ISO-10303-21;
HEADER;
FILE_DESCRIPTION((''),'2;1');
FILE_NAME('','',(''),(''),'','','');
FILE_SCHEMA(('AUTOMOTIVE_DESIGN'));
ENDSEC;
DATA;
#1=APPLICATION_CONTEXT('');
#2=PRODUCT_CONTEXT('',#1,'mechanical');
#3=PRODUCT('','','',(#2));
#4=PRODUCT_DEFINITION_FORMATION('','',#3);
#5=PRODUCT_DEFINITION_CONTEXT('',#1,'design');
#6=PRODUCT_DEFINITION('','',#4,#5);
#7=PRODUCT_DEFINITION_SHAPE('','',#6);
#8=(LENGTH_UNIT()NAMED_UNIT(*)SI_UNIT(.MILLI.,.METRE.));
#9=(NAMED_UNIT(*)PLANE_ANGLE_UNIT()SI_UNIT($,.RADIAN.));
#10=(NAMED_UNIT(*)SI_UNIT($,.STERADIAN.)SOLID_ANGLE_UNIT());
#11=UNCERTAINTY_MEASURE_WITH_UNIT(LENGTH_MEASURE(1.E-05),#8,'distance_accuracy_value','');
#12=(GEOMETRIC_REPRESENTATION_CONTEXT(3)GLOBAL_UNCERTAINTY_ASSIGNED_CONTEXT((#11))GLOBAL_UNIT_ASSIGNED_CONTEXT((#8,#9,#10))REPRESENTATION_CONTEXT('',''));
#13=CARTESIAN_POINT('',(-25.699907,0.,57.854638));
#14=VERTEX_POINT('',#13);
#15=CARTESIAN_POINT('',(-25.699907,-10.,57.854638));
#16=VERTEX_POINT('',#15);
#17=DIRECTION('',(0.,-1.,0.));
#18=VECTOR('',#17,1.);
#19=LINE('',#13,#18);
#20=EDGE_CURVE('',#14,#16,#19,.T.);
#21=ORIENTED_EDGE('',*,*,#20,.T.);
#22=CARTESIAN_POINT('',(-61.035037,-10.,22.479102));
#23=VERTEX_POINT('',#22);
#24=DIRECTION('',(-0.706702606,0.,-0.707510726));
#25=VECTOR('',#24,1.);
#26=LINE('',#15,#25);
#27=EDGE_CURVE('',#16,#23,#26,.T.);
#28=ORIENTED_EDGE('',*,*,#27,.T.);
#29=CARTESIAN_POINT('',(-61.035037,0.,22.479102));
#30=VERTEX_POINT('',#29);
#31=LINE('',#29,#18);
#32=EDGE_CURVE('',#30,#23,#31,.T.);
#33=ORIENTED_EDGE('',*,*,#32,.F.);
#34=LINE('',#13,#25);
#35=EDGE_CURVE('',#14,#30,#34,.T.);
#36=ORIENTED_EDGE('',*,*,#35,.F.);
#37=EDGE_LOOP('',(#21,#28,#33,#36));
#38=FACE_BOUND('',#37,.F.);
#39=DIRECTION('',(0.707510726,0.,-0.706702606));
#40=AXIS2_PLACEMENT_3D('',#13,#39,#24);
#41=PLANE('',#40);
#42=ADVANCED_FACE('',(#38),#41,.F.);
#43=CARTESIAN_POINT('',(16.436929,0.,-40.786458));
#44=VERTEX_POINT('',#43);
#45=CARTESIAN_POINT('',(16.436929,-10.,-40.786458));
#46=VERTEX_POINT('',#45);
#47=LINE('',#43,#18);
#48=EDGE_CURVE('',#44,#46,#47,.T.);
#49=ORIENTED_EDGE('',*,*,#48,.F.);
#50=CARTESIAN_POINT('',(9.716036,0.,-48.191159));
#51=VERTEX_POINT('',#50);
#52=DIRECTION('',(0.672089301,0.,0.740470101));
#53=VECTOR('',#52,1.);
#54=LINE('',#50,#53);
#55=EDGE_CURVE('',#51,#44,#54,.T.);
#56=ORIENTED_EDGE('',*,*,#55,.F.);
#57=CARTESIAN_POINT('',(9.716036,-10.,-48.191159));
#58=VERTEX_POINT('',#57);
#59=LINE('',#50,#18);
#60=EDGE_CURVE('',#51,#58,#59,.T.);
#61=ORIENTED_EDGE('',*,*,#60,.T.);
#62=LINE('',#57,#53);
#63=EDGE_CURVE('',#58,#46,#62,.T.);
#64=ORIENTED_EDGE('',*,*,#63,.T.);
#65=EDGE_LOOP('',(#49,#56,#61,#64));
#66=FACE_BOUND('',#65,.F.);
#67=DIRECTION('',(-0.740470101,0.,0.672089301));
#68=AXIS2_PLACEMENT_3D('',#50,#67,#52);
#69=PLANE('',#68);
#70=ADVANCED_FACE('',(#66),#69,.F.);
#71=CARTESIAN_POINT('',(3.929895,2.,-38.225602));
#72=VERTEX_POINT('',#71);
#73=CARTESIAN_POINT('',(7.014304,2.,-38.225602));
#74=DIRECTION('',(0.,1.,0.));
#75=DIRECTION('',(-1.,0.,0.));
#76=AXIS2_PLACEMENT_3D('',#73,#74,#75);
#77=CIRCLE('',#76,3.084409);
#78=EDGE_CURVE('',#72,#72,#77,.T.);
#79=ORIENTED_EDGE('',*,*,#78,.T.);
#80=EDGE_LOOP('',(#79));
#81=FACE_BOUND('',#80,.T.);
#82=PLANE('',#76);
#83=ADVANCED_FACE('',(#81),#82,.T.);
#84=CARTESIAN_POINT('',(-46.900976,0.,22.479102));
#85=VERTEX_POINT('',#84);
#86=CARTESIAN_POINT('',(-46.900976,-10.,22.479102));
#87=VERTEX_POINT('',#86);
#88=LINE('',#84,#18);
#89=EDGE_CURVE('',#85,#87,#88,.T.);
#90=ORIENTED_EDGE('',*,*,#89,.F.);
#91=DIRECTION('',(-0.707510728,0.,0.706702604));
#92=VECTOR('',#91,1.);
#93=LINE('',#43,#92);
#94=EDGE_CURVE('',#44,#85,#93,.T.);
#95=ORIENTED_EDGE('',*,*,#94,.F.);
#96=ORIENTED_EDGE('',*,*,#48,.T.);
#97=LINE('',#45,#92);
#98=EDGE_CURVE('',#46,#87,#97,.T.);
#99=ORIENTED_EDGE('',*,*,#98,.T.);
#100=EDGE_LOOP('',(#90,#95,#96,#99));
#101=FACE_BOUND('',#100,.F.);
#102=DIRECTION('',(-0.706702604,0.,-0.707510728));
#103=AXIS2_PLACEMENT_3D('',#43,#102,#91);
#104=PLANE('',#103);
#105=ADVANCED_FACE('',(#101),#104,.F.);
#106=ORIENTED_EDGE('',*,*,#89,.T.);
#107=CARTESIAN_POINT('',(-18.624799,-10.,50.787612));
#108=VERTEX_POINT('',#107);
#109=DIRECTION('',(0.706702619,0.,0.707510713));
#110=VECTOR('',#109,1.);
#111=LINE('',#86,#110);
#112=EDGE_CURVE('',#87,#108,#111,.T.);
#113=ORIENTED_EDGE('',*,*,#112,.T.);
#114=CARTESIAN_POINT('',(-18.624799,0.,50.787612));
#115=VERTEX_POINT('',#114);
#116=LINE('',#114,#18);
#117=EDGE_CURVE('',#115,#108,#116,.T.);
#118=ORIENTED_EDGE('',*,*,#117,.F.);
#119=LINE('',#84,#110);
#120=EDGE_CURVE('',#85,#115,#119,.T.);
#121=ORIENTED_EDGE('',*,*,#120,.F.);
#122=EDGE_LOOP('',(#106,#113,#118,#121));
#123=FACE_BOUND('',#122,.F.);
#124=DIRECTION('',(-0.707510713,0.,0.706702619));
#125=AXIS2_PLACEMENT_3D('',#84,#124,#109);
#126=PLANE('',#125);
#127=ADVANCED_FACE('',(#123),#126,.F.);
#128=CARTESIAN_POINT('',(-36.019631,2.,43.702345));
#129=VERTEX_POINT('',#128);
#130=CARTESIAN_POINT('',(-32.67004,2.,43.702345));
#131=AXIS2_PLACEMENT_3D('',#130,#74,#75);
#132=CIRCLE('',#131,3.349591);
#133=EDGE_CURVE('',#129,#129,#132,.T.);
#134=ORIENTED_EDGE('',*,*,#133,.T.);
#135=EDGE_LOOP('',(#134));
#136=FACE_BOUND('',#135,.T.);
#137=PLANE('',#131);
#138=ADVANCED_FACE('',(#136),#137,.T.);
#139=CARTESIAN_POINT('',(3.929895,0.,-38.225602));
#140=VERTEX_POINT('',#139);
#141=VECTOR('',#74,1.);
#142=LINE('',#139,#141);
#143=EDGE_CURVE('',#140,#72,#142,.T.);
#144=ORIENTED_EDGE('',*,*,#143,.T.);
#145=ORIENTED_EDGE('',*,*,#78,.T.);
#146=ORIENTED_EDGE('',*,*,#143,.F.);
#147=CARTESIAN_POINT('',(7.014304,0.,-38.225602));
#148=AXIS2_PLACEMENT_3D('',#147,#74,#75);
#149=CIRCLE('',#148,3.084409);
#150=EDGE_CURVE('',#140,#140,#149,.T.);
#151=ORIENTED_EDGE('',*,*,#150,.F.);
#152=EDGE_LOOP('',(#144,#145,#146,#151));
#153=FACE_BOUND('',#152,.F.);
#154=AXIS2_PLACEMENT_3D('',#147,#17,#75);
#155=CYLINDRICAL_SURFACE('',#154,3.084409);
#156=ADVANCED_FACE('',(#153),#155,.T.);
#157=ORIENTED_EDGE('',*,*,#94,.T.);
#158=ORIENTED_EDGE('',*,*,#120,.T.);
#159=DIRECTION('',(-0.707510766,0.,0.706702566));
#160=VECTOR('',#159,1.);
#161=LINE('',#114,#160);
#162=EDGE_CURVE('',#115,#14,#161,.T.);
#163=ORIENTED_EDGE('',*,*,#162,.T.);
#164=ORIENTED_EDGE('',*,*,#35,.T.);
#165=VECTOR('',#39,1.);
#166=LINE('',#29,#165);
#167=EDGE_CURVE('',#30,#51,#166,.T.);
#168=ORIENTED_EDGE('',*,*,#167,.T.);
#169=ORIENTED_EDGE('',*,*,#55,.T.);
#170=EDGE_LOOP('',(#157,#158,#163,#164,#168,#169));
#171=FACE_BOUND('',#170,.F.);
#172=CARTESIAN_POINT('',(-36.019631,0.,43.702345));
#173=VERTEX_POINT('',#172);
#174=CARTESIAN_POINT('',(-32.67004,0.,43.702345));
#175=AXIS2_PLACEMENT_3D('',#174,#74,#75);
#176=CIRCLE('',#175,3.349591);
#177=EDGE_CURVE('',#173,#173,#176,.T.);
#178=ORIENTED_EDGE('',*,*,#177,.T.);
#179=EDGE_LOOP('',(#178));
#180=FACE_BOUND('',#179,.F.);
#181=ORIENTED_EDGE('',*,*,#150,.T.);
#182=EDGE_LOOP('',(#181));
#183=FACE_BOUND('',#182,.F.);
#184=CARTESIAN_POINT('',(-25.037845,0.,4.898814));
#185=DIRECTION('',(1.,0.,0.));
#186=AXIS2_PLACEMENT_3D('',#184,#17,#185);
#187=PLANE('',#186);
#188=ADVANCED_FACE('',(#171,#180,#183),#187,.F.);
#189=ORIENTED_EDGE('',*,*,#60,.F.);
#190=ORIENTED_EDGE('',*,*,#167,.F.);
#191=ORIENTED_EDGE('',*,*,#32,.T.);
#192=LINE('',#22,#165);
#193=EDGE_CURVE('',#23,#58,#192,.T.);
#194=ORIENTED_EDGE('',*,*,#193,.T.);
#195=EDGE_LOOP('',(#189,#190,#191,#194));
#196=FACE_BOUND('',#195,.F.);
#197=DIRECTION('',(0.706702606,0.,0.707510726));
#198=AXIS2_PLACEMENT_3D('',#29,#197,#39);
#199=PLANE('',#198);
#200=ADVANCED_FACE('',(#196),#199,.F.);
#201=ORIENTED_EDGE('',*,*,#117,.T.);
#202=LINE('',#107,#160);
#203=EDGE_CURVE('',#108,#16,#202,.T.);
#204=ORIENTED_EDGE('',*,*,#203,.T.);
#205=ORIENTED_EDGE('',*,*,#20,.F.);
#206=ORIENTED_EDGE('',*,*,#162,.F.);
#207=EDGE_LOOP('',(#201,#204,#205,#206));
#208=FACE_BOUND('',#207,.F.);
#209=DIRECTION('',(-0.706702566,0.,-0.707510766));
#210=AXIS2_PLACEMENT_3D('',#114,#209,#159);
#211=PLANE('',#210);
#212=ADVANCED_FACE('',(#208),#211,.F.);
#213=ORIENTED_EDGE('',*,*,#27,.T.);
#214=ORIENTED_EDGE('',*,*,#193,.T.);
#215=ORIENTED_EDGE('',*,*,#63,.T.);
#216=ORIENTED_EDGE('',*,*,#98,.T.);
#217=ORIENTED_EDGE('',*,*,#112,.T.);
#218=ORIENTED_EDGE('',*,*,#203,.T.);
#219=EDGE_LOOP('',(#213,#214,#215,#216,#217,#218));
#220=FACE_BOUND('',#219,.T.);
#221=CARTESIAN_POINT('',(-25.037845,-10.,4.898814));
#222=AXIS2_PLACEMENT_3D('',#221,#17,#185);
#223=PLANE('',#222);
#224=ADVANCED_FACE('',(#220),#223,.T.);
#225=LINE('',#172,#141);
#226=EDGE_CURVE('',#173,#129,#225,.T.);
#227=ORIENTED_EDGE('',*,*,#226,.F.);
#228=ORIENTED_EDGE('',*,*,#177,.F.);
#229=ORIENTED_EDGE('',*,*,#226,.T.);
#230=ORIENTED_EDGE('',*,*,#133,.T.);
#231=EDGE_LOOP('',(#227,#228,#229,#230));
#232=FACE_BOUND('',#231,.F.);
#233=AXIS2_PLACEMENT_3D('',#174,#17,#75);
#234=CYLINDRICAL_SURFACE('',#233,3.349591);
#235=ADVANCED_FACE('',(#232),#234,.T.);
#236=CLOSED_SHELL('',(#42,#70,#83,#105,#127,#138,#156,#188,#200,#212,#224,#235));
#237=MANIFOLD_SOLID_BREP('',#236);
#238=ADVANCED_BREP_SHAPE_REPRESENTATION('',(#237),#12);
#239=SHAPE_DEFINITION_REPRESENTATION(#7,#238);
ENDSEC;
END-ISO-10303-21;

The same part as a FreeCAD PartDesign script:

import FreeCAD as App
import Part
import Sketcher
from FreeCAD import Vector
Q = App.Units.Quantity


def add_polygon(sketch, points):
    """Adds a closed chain of lines whose ends are joined by coincident constraints."""
    first, n = sketch.GeometryCount, len(points)
    for a, b in zip(points, points[1:] + points[:1]):
        sketch.addGeometry(Part.LineSegment(App.Vector(*a, 0), App.Vector(*b, 0)), False)
    for i in range(n):
        sketch.addConstraint(Sketcher.Constraint("Coincident", first + i, 2, first + (i + 1) % n, 1))

doc = App.newDocument("Part")
body = doc.addObject("PartDesign::Body", "Body")

# Sketch on XZ plane
sketch1 = body.newObject("Sketcher::SketchObject", "Sketch")
sketch1.AttachmentSupport = (doc.getObject("XZ_Plane"), [""])
sketch1.MapMode = "FlatFace"
add_polygon(sketch1, [(-26, 58), (-61, 22), (10, -48), (16, -41), (-47, 22), (-19, 51)])  # lines 0-5
sketch1.addConstraint([
    Sketcher.Constraint("Perpendicular", 0, 1),
    Sketcher.Constraint("Parallel", 1, 3),
    Sketcher.Constraint("Perpendicular", 3, 4),
    Sketcher.Constraint("Perpendicular", 4, 5),
    Sketcher.Constraint("Horizontal", 0, 2, 3, 2),
    Sketcher.Constraint("Equal", 2, 5),
    Sketcher.Constraint("Distance", 0, Q("50 mm")),
    Sketcher.Constraint("Distance", 1, Q("100.000001 mm")),
    Sketcher.Constraint("Distance", 2, Q("10 mm")),
    Sketcher.Constraint("DistanceX", 4, 2, -1, 1, Q("18.624799 mm")),
    Sketcher.Constraint("DistanceY", 1, 2, 2, 2, Q("7.404701 mm")),
    Sketcher.Constraint("DistanceY", 1, 2, -1, 1, Q("48.191159 mm")),
])
pad1 = body.newObject("PartDesign::Pad", "Pad")
pad1.Profile = sketch1
pad1.Length = 10

# Sketch on XZ plane
sketch2 = body.newObject("Sketcher::SketchObject", "Sketch001")
sketch2.AttachmentSupport = (doc.getObject("XZ_Plane"), [""])
sketch2.MapMode = "FlatFace"
sketch2.addGeometry([
    Part.Circle(Vector(7, -38.2, 0), Vector(0, 0, 1), 3.1),
    Part.Circle(Vector(-32.7, 43.7, 0), Vector(0, 0, 1), 3.3),
], False)
sketch2.addConstraint([
    Sketcher.Constraint("Diameter", 0, Q("6.168818 mm")),
    Sketcher.Constraint("Diameter", 1, Q("6.699182 mm")),
    Sketcher.Constraint("DistanceX", 1, 3, -1, 1, Q("32.67004 mm")),
    Sketcher.Constraint("DistanceX", -1, 1, 0, 3, Q("7.014304 mm")),
    Sketcher.Constraint("DistanceY", 0, 3, -1, 1, Q("38.225602 mm")),
    Sketcher.Constraint("DistanceY", -1, 1, 1, 3, Q("43.702345 mm")),
])
pad2 = body.newObject("PartDesign::Pad", "Pad001")
pad2.Profile = sketch2
pad2.Length = 2
pad2.Reversed = True

doc.recompute()
